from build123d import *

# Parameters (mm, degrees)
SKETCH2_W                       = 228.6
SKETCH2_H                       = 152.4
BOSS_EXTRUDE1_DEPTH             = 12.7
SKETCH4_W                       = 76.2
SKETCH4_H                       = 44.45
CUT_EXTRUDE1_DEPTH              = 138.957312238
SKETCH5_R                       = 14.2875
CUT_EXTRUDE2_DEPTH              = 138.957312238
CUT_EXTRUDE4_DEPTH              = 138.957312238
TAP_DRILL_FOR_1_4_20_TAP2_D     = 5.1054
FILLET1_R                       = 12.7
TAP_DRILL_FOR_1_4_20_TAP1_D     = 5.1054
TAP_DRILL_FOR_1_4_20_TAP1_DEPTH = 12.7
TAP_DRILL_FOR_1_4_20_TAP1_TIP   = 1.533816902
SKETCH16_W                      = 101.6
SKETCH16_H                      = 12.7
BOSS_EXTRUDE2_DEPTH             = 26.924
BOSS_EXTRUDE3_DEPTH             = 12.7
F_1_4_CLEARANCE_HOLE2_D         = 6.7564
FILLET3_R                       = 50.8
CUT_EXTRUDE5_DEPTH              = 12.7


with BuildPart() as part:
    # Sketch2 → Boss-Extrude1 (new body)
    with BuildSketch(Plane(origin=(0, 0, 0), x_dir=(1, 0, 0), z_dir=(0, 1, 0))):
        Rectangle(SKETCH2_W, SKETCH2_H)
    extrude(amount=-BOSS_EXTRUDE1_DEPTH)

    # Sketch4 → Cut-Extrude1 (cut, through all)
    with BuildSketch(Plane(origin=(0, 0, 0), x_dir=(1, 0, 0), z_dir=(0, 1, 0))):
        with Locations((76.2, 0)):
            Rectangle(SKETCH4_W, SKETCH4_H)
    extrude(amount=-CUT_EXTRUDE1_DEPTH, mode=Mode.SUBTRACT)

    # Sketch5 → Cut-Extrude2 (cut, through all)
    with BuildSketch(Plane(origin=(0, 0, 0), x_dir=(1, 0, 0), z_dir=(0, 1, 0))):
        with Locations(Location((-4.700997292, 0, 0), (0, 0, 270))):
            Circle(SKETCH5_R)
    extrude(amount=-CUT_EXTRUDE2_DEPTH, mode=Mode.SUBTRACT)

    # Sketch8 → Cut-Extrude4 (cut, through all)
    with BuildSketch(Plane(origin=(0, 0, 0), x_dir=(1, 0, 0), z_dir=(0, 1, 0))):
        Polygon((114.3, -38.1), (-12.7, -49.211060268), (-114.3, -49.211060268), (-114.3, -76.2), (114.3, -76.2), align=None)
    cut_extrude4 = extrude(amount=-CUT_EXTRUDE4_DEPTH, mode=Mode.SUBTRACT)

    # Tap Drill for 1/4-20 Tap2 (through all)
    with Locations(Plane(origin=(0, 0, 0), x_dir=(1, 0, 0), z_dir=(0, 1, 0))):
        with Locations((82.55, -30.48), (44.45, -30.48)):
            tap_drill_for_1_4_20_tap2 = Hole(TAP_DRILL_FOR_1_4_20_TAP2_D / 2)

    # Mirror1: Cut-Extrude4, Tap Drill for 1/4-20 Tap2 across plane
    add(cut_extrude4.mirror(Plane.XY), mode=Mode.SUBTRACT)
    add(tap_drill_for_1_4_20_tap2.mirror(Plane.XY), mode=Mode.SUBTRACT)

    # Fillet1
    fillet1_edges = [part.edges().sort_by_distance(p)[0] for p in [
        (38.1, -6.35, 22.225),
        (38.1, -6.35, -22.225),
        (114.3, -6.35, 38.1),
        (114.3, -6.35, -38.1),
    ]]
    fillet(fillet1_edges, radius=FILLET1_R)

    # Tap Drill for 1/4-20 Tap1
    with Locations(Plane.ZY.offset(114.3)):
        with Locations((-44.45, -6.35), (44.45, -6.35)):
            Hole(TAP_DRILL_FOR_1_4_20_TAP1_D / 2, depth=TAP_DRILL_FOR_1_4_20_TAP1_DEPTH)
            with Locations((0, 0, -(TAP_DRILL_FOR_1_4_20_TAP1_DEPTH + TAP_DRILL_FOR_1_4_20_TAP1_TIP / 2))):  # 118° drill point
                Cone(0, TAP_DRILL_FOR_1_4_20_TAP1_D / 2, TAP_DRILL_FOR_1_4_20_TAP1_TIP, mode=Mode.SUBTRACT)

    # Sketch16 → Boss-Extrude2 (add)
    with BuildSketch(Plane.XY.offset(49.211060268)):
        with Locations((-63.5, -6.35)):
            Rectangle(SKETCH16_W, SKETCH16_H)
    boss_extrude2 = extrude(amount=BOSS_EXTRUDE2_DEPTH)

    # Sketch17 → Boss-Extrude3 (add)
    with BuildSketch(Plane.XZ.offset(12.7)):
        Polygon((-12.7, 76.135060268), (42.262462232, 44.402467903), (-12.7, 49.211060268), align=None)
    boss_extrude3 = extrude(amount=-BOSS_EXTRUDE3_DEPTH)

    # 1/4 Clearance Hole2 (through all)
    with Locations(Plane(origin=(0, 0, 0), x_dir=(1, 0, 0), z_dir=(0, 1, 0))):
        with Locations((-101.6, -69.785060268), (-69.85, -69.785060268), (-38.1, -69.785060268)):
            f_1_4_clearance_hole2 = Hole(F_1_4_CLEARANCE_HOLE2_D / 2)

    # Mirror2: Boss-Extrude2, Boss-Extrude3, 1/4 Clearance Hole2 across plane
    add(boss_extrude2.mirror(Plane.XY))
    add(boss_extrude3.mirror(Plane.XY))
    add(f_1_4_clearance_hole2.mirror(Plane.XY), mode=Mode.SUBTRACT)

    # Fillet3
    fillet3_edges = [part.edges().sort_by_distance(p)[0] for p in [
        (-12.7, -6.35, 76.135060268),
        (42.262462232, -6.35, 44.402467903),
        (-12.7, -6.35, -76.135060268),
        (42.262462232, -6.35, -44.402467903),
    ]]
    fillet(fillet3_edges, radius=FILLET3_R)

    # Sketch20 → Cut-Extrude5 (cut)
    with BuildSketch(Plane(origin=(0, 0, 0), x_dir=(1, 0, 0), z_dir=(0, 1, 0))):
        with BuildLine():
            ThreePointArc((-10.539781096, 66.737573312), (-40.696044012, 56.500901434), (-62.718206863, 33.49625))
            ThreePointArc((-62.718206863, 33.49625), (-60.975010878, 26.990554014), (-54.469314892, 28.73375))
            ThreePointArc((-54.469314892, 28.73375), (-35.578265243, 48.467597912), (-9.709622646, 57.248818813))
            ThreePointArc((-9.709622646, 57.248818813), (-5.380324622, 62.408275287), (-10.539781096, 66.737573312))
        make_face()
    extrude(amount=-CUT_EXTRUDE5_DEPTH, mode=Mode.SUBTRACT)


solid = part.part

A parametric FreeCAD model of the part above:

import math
import FreeCAD as App
import Part
import Sketcher
from FreeCAD import Vector
Q = App.Units.Quantity


def edges_at(feature, points):
    """Names of the edges that pass closest to the given points."""
    edges = feature.Shape.Edges
    near = lambda p: min(range(len(edges)), key=lambda i: edges[i].distToShape(Part.Vertex(*p))[0])
    return sorted({f"Edge{near(p) + 1}" for p in points})

doc = App.newDocument("Part")
body = doc.addObject("PartDesign::Body", "Body")

sketch1 = body.newObject("Sketcher::SketchObject", "Sketch")
sketch1.AttachmentSupport = (doc.getObject("XZ_Plane"), [""])
sketch1.MapMode = "FlatFace"
sketch1.addGeometry([
    Part.LineSegment(Vector(-114, -76, 0), Vector(-114, 76, 0)),
    Part.LineSegment(Vector(-114, 76, 0), Vector(114, 76, 0)),
    Part.LineSegment(Vector(114, 76, 0), Vector(114, -76, 0)),
    Part.LineSegment(Vector(114, -76, 0), Vector(-114, -76, 0)),
], False)
sketch1.addConstraint([
    Sketcher.Constraint("Coincident", 0, 2, 1, 1),
    Sketcher.Constraint("Coincident", 1, 2, 2, 1),
    Sketcher.Constraint("Coincident", 2, 2, 3, 1),
    Sketcher.Constraint("Coincident", 3, 2, 0, 1),
    Sketcher.Constraint("Vertical", 0),
    Sketcher.Constraint("Horizontal", 1),
    Sketcher.Constraint("Vertical", 2),
    Sketcher.Constraint("Horizontal", 3),
    Sketcher.Constraint("Symmetric", 0, 2, 2, 2, -1, 1),
    Sketcher.Constraint("DistanceX", 1, 1, 1, 2, Q("9 in")),
    Sketcher.Constraint("DistanceY", 0, 1, 0, 2, Q("6 in")),
])
pad1 = body.newObject("PartDesign::Pad", "Pad")
pad1.Profile = sketch1
pad1.Length = Q("0.5 in")

sketch2 = body.newObject("Sketcher::SketchObject", "Sketch001")
sketch2.AttachmentSupport = (doc.getObject("XZ_Plane"), [""])
sketch2.MapMode = "FlatFace"
sketch2.addGeometry([
    Part.LineSegment(Vector(38, -22, 0), Vector(38, 22, 0)),
    Part.LineSegment(Vector(38, 22, 0), Vector(114, 22, 0)),
    Part.LineSegment(Vector(114, 22, 0), Vector(114, -22, 0)),
    Part.LineSegment(Vector(114, -22, 0), Vector(38, -22, 0)),
], False)
sketch2.addConstraint([
    Sketcher.Constraint("Coincident", 0, 2, 1, 1),
    Sketcher.Constraint("Coincident", 1, 2, 2, 1),
    Sketcher.Constraint("Coincident", 2, 2, 3, 1),
    Sketcher.Constraint("Coincident", 3, 2, 0, 1),
    Sketcher.Constraint("Vertical", 0),
    Sketcher.Constraint("Horizontal", 1),
    Sketcher.Constraint("Vertical", 2),
    Sketcher.Constraint("Horizontal", 3),
    Sketcher.Constraint("DistanceX", 1, 1, 1, 2, Q("3 in")),
    Sketcher.Constraint("DistanceY", 0, 1, 0, 2, Q("1.75 in")),
    Sketcher.Constraint("DistanceX", -1, 1, 0, 2, Q("1.5 in")),
    Sketcher.Constraint("DistanceY", -1, 1, 0, 2, Q("0.875 in")),
])
pocket1 = body.newObject("PartDesign::Pocket", "Pocket")
pocket1.Profile = sketch2
pocket1.Type = "ThroughAll"
pocket1.Reversed = True

sketch3 = body.newObject("Sketcher::SketchObject", "Sketch002")
sketch3.AttachmentSupport = (doc.getObject("XZ_Plane"), [""])
sketch3.MapMode = "FlatFace"
sketch3.addGeometry(Part.Circle(Vector(-5, 0, 0), Vector(0, 0, 1), 14), False)
sketch3.addConstraint([
    Sketcher.Constraint("PointOnObject", 0, 3, -1),
    Sketcher.Constraint("Diameter", 0, Q("1.125 in")),
    Sketcher.Constraint("DistanceX", 0, 3, -1, 1, Q("4.700997 mm")),
])
pocket2 = body.newObject("PartDesign::Pocket", "Pocket001")
pocket2.Profile = sketch3
pocket2.Type = "ThroughAll"
pocket2.Reversed = True

sketch4 = body.newObject("Sketcher::SketchObject", "Sketch003")
sketch4.AttachmentSupport = (doc.getObject("XZ_Plane"), [""])
sketch4.MapMode = "FlatFace"
sketch4.addGeometry([
    Part.LineSegment(Vector(114, 38, 0), Vector(-13, 49, 0)),
    Part.LineSegment(Vector(-13, 49, 0), Vector(-114, 49, 0)),
    Part.LineSegment(Vector(-114, 49, 0), Vector(-114, 76, 0)),
    Part.LineSegment(Vector(-114, 76, 0), Vector(114, 76, 0)),
    Part.LineSegment(Vector(114, 76, 0), Vector(114, 38, 0)),
], False)
sketch4.addConstraint([
    Sketcher.Constraint("Coincident", 0, 2, 1, 1),
    Sketcher.Constraint("Coincident", 1, 2, 2, 1),
    Sketcher.Constraint("Coincident", 2, 2, 3, 1),
    Sketcher.Constraint("Coincident", 3, 2, 4, 1),
    Sketcher.Constraint("Coincident", 4, 2, 0, 1),
    Sketcher.Constraint("Horizontal", 1),
    Sketcher.Constraint("Vertical", 2),
    Sketcher.Constraint("Horizontal", 3),
    Sketcher.Constraint("Vertical", 4),
    Sketcher.Constraint("DistanceX", 1, 2, 1, 1, Q("4 in")),
    Sketcher.Constraint("DistanceX", 3, 1, 3, 2, Q("9 in")),
    Sketcher.Constraint("DistanceY", 4, 2, 4, 1, Q("1.5 in")),
    Sketcher.Constraint("DistanceY", -1, 1, 2, 2, Q("3 in")),
    Sketcher.Constraint("Angle", 0, Q("175 deg")),
    Sketcher.Constraint("DistanceX", 0, 2, -1, 1, Q("0.5 in")),
])
pocket3 = body.newObject("PartDesign::Pocket", "Pocket002")
pocket3.Profile = sketch4
pocket3.Type = "ThroughAll"
pocket3.Reversed = True

sketch5 = body.newObject("Sketcher::SketchObject", "Sketch004")
sketch5.AttachmentSupport = (doc.getObject("XZ_Plane"), [""])
sketch5.MapMode = "FlatFace"
sketch5.addGeometry([
    Part.Circle(Vector(82.5, 30.5, 0), Vector(0, 0, 1), 2.6),
    Part.Circle(Vector(44.5, 30.5, 0), Vector(0, 0, 1), 2.6),
], False)
sketch5.addConstraint([
    Sketcher.Constraint("Equal", 0, 1),
    Sketcher.Constraint("Horizontal", 0, 3, 1, 3),
    Sketcher.Constraint("Diameter", 0, Q("0.201 in")),
    Sketcher.Constraint("DistanceY", -1, 1, 0, 3, Q("1.2 in")),
    Sketcher.Constraint("DistanceX", 1, 3, 0, 3, Q("1.5 in")),
    Sketcher.Constraint("DistanceX", -1, 1, 0, 3, Q("3.25 in")),
])
doc.recompute()
hole = body.newObject("PartDesign::Hole", "Hole")
hole.Profile = sketch5
hole.ThreadType = "None"
hole.Diameter = Q("0.201 in")
hole.DepthType = "ThroughAll"
hole.Reversed = True
doc.recompute()

mirrored = body.newObject("PartDesign::Mirrored", "Mirrored")
mirrored.Originals = [pocket3, hole]
mirrored.MirrorPlane = (doc.getObject("XY_Plane"), [""])
body.Tip = mirrored
doc.recompute()

fillet = body.newObject("PartDesign::Fillet", "Fillet")
fillet.Base = (mirrored, edges_at(mirrored, [
    (38.1, -6.35, 22.225),
    (38.1, -6.35, -22.225),
    (114.3, -6.35, 38.1),
    (114.3, -6.35, -38.1),
]))
fillet.Radius = Q("0.5 in")

sketch6 = body.newObject("Sketcher::SketchObject", "Sketch005")
sketch6.AttachmentSupport = (doc.getObject("YZ_Plane"), [""])
sketch6.MapMode = "FlatFace"
sketch6.AttachmentOffset = App.Placement(Vector(0, 0, -4.5 * 25.4), App.Rotation())
sketch6.addGeometry([
    Part.Circle(Vector(-6.3, -44.5, 0), Vector(0, 0, 1), 2.6),
    Part.Circle(Vector(-6.3, 44.5, 0), Vector(0, 0, 1), 2.6),
], False)
sketch6.addConstraint([
    Sketcher.Constraint("Equal", 0, 1),
    Sketcher.Constraint("Symmetric", 0, 3, 1, 3, -1),
    Sketcher.Constraint("Diameter", 0, Q("0.201 in")),
    Sketcher.Constraint("DistanceY", 0, 3, 1, 3, Q("3.5 in")),
    Sketcher.Constraint("DistanceX", 0, 3, -1, 1, Q("0.25 in")),
])
doc.recompute()
hole2 = body.newObject("PartDesign::Hole", "Hole001")
hole2.Profile = sketch6
hole2.ThreadType = "None"
hole2.Diameter = Q("0.201 in")
hole2.DepthType = "Dimension"
hole2.Depth = Q("0.5 in")
hole2.DrillPoint = "Angled"
hole2.DrillPointAngle = 118
hole2.Reversed = True

sketch7 = body.newObject("Sketcher::SketchObject", "Sketch006")
sketch7.AttachmentSupport = (doc.getObject("XY_Plane"), [""])
sketch7.MapMode = "FlatFace"
sketch7.AttachmentOffset = App.Placement(Vector(0, 0, 49.21106), App.Rotation())
sketch7.addGeometry([
    Part.LineSegment(Vector(-114, 0, 0), Vector(-114, -13, 0)),
    Part.LineSegment(Vector(-114, -13, 0), Vector(-13, -13, 0)),
    Part.LineSegment(Vector(-13, -13, 0), Vector(-13, 0, 0)),
    Part.LineSegment(Vector(-13, 0, 0), Vector(-114, 0, 0)),
], False)
sketch7.addConstraint([
    Sketcher.Constraint("Coincident", 0, 2, 1, 1),
    Sketcher.Constraint("Coincident", 1, 2, 2, 1),
    Sketcher.Constraint("Coincident", 2, 2, 3, 1),
    Sketcher.Constraint("Coincident", 3, 2, 0, 1),
    Sketcher.Constraint("Vertical", 0),
    Sketcher.Constraint("Horizontal", 1),
    Sketcher.Constraint("Vertical", 2),
    Sketcher.Constraint("Horizontal", 3),
    Sketcher.Constraint("PointOnObject", 2, 2, -1),
    Sketcher.Constraint("DistanceX", 1, 1, 1, 2, Q("4 in")),
    Sketcher.Constraint("DistanceY", 0, 2, 0, 1, Q("0.5 in")),
    Sketcher.Constraint("DistanceX", 0, 2, -1, 1, Q("4.5 in")),
])
pad2 = body.newObject("PartDesign::Pad", "Pad001")
pad2.Profile = sketch7
pad2.Length = Q("1.06 in")

sketch8 = body.newObject("Sketcher::SketchObject", "Sketch007")
sketch8.AttachmentSupport = (doc.getObject("XZ_Plane"), [""])
sketch8.MapMode = "FlatFace"
sketch8.AttachmentOffset = App.Placement(Vector(0, 0, 0.5 * 25.4), App.Rotation())
sketch8.addGeometry([
    Part.LineSegment(Vector(42, 44, 0), Vector(-13, 76, 0)),
    Part.LineSegment(Vector(-13, 76, 0), Vector(-13, 49, 0)),
    Part.LineSegment(Vector(-13, 49, 0), Vector(42, 44, 0)),
], False)
sketch8.addConstraint([
    Sketcher.Constraint("Coincident", 0, 2, 1, 1),
    Sketcher.Constraint("Coincident", 1, 2, 2, 1),
    Sketcher.Constraint("Coincident", 2, 2, 0, 1),
    Sketcher.Constraint("Vertical", 1),
    Sketcher.Constraint("Angle", 0, Q("150 deg")),
    Sketcher.Constraint("Angle", 2, Q("-5 deg")),
    Sketcher.Constraint("DistanceY", 1, 2, 1, 1, Q("1.06 in")),
    Sketcher.Constraint("DistanceX", 0, 2, -1, 1, Q("0.5 in")),
    Sketcher.Constraint("DistanceY", -1, 1, 0, 2, Q("76.13506 mm")),
])
pad3 = body.newObject("PartDesign::Pad", "Pad002")
pad3.Profile = sketch8
pad3.Length = Q("0.5 in")
pad3.Reversed = True

sketch9 = body.newObject("Sketcher::SketchObject", "Sketch008")
sketch9.AttachmentSupport = (doc.getObject("XZ_Plane"), [""])
sketch9.MapMode = "FlatFace"
sketch9.addGeometry([
    Part.Circle(Vector(-101.6, 69.8, 0), Vector(0, 0, 1), 3.4),
    Part.Circle(Vector(-69.8, 69.8, 0), Vector(0, 0, 1), 3.4),
    Part.Circle(Vector(-38.1, 69.8, 0), Vector(0, 0, 1), 3.4),
], False)
sketch9.addConstraint([
    Sketcher.Constraint("Equal", 0, 1),
    Sketcher.Constraint("Equal", 1, 2),
    Sketcher.Constraint("Horizontal", 0, 3, 1, 3),
    Sketcher.Constraint("Horizontal", 1, 3, 2, 3),
    Sketcher.Constraint("Diameter", 0, Q("0.266 in")),
    Sketcher.Constraint("DistanceX", 0, 3, -1, 1, Q("4 in")),
    Sketcher.Constraint("DistanceX", 2, 3, -1, 1, Q("1.5 in")),
    Sketcher.Constraint("DistanceX", 1, 3, -1, 1, Q("2.75 in")),
    Sketcher.Constraint("DistanceY", -1, 1, 0, 3, Q("69.78506 mm")),
])
doc.recompute()
hole3 = body.newObject("PartDesign::Hole", "Hole002")
hole3.Profile = sketch9
hole3.ThreadType = "None"
hole3.Diameter = Q("0.266 in")
hole3.DepthType = "ThroughAll"
hole3.Reversed = True
doc.recompute()

mirrored2 = body.newObject("PartDesign::Mirrored", "Mirrored001")
mirrored2.Originals = [pad2, pad3, hole3]
mirrored2.MirrorPlane = (doc.getObject("XY_Plane"), [""])
body.Tip = mirrored2
doc.recompute()

fillet2 = body.newObject("PartDesign::Fillet", "Fillet001")
fillet2.Base = (mirrored2, edges_at(mirrored2, [
    (-12.7, -6.35, 76.135),
    (42.262, -6.35, 44.402),
    (-12.7, -6.35, -76.135),
    (42.262, -6.35, -44.402),
]))
fillet2.Radius = Q("2 in")

sketch10 = body.newObject("Sketcher::SketchObject", "Sketch009")
sketch10.AttachmentSupport = (doc.getObject("XZ_Plane"), [""])
sketch10.MapMode = "FlatFace"
sketch10.addGeometry([
    Part.ArcOfCircle(Part.Circle(Vector(-4.7, 0, 0), Vector(0, 0, 1), 67), math.radians(-150), math.radians(-95)),
    Part.ArcOfCircle(Part.Circle(Vector(-58.6, -31.1, 0), Vector(0, 0, 1), 4.8), math.radians(30), math.radians(210)),
    Part.ArcOfCircle(Part.Circle(Vector(-4.7, 0, 0), Vector(0, 0, 1), 57.5), math.radians(-150), math.radians(-95)),
    Part.ArcOfCircle(Part.Circle(Vector(-10.1, -62, 0), Vector(0, 0, 1), 4.8), math.radians(-95), math.radians(85)),
], False)
sketch10.addConstraint([
    Sketcher.Constraint("Tangent", 0, 1, 1, 2),
    Sketcher.Constraint("Tangent", 1, 1, 2, 1),
    Sketcher.Constraint("Tangent", 2, 2, 3, 2),
    Sketcher.Constraint("Tangent", 3, 1, 0, 2),
    Sketcher.Constraint("Coincident", 2, 3, 0, 3),
    Sketcher.Constraint("PointOnObject", 0, 3, -1),
    Sketcher.Constraint("Radius", 1, Q("0.1875 in")),
    Sketcher.Constraint("Radius", 0, Q("2.6375 in")),
    Sketcher.Constraint("DistanceY", 1, 3, -1, 1, Q("1.225 in")),
    Sketcher.Constraint("DistanceX", 0, 3, -1, 1, Q("4.701 mm")),
    Sketcher.Constraint("DistanceX", 3, 3, -1, 1, Q("10.124702 mm")),
])
pocket4 = body.newObject("PartDesign::Pocket", "Pocket003")
pocket4.Profile = sketch10
pocket4.Length = Q("0.5 in")
pocket4.Reversed = True

doc.recompute()
